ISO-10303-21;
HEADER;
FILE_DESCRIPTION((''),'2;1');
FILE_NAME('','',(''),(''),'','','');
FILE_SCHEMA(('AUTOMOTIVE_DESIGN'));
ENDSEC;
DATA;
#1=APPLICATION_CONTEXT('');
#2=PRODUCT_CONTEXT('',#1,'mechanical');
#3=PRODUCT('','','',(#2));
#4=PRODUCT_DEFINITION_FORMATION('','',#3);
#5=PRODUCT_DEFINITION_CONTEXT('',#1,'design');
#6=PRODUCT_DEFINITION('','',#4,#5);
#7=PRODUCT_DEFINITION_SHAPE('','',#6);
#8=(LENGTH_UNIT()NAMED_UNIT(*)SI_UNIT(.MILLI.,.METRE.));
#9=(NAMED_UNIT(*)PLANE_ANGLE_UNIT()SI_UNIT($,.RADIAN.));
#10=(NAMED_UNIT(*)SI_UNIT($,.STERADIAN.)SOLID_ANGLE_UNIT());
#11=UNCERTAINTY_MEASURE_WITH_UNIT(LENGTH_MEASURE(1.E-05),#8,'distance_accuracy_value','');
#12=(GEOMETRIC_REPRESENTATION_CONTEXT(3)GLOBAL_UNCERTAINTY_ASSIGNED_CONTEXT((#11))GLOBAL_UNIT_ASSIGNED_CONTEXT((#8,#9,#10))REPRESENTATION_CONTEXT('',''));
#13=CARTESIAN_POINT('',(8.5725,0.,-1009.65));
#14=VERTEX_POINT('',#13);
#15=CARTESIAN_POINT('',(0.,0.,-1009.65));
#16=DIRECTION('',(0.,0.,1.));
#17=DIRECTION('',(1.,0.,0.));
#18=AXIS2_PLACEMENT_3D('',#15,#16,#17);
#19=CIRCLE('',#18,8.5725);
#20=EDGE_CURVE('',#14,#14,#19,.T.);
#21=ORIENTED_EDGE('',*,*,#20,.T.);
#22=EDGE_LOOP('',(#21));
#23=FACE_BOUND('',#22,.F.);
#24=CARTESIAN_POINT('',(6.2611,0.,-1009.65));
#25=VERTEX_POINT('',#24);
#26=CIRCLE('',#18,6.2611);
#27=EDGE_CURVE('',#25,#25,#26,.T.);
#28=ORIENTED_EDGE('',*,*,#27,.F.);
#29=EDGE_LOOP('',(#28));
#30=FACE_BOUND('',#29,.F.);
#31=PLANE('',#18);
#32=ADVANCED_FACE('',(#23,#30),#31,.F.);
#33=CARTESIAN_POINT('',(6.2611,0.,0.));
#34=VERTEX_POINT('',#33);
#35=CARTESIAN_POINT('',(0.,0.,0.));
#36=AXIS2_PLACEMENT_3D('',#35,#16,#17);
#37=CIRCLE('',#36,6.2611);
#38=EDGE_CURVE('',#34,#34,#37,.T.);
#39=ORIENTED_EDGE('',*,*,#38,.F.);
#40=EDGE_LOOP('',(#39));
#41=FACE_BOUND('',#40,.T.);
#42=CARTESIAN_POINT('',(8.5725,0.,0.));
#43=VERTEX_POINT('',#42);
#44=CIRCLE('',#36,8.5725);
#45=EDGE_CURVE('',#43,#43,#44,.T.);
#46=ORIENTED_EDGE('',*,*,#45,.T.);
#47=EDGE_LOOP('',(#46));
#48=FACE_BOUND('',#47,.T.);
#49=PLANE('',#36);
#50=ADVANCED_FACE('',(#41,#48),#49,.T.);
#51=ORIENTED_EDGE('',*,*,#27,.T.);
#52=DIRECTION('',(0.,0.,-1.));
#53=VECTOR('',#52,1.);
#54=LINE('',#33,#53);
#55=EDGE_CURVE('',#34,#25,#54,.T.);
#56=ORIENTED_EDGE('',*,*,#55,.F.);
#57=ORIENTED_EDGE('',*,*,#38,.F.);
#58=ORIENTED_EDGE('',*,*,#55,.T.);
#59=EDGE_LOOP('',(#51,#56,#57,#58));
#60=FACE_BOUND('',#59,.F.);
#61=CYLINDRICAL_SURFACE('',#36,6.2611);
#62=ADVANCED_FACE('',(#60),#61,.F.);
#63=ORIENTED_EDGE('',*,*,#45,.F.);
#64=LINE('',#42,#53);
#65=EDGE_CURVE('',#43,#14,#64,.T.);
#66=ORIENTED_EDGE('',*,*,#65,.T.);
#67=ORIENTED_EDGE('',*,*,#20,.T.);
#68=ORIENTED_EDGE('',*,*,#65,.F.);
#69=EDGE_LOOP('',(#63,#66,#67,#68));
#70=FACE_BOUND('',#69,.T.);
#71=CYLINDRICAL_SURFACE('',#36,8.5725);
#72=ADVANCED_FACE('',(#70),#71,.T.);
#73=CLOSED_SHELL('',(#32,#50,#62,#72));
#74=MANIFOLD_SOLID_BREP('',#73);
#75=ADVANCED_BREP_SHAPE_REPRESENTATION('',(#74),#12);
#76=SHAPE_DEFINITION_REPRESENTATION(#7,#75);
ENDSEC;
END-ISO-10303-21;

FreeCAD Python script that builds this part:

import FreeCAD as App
import Part
import Sketcher
Q = App.Units.Quantity

doc = App.newDocument("Part")
body = doc.addObject("PartDesign::Body", "Body")

# Sketch on XY plane
sketch1 = body.newObject("Sketcher::SketchObject", "Sketch")
sketch1.AttachmentSupport = (doc.getObject("XY_Plane"), [""])
sketch1.MapMode = "FlatFace"
sketch1.addGeometry(Part.Circle(App.Vector(0, 0, 0), App.Vector(0, 0, 1), 9), False)
sketch1.addGeometry(Part.Circle(App.Vector(0, 0, 0), App.Vector(0, 0, 1), 6), False)
sketch1.addConstraint(Sketcher.Constraint("Coincident", 0, 3, -1, 1))
sketch1.addConstraint(Sketcher.Constraint("Coincident", 1, 3, -1, 1))
sketch1.addConstraint(Sketcher.Constraint("Diameter", 0, Q("0.675 in")))
sketch1.addConstraint(Sketcher.Constraint("Diameter", 1, Q("0.493 in")))
pad1 = body.newObject("PartDesign::Pad", "Pad")
pad1.Profile = sketch1
pad1.Length = Q("39.75 in")
pad1.Reversed = True

doc.recompute()
